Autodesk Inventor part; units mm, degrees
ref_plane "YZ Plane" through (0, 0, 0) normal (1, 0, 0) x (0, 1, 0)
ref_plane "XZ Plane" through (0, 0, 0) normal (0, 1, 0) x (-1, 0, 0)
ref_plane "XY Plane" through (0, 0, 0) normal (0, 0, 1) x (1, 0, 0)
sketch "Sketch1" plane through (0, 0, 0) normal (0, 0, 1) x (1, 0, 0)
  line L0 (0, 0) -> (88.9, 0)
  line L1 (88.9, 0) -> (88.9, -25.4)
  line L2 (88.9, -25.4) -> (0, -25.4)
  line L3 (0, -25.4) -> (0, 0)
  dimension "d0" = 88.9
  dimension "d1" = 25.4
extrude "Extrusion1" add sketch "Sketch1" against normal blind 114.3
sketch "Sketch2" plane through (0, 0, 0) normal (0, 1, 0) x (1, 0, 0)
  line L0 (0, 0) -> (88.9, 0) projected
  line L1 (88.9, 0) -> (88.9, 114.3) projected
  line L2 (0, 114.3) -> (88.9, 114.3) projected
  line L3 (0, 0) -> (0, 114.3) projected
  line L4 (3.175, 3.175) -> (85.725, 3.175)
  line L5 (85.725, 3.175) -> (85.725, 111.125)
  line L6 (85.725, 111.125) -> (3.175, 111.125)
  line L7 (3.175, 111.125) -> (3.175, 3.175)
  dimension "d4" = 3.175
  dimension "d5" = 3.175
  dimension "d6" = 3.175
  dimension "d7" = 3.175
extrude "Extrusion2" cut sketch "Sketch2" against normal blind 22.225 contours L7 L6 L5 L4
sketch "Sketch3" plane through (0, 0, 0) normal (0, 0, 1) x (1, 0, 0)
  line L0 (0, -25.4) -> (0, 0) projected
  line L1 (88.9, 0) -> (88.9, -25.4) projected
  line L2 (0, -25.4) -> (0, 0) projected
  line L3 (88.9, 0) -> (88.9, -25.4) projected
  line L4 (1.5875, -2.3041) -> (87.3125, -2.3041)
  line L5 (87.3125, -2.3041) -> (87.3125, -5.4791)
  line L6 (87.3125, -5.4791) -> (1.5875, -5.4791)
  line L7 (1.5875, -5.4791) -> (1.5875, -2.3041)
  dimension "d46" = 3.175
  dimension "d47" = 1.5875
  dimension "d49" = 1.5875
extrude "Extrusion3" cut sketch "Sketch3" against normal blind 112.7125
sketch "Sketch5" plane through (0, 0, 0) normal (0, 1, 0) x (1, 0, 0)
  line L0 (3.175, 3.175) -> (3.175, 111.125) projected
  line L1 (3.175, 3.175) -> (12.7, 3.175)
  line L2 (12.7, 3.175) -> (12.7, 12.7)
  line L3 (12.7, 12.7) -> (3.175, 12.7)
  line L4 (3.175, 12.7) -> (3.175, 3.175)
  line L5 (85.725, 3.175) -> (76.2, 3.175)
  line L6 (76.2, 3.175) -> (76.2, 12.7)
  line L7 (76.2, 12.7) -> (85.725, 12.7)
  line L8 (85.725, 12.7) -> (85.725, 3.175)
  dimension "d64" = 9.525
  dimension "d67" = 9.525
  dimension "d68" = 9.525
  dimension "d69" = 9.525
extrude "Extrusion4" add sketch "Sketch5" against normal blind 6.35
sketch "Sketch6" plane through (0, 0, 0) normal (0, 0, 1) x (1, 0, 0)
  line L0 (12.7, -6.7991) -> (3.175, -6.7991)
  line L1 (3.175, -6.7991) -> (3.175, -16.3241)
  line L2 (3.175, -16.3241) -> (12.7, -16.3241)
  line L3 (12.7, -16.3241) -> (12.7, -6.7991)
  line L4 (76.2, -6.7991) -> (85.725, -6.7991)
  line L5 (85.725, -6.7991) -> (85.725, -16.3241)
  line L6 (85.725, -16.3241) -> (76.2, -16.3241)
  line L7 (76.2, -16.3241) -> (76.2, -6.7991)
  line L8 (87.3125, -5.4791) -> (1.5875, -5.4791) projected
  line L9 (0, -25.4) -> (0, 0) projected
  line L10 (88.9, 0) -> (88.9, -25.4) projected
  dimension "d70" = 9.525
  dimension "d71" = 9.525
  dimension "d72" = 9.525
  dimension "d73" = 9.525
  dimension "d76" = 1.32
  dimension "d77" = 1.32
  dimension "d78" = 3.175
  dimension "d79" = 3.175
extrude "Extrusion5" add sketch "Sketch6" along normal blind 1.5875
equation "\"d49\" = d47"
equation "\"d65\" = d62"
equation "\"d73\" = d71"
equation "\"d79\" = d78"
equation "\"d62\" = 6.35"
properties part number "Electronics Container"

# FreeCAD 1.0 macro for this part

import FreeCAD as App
import Part
import Sketcher
from FreeCAD import Vector
Q = App.Units.Quantity

doc = App.newDocument("Part")
body = doc.addObject("PartDesign::Body", "Body")

# Sketch on XY plane
sketch1 = body.newObject("Sketcher::SketchObject", "Sketch")
sketch1.AttachmentSupport = (doc.getObject("XY_Plane"), [""])
sketch1.MapMode = "FlatFace"
sketch1.addGeometry([
    Part.LineSegment(Vector(89, 0, 0), Vector(0, 0, 0)),
    Part.LineSegment(Vector(0, 0, 0), Vector(0, -25, 0)),
    Part.LineSegment(Vector(0, -25, 0), Vector(89, -25, 0)),
    Part.LineSegment(Vector(89, -25, 0), Vector(89, 0, 0)),
], False)
sketch1.addConstraint([
    Sketcher.Constraint("Coincident", 0, 2, 1, 1),
    Sketcher.Constraint("Coincident", 1, 2, 2, 1),
    Sketcher.Constraint("Coincident", 2, 2, 3, 1),
    Sketcher.Constraint("Coincident", 3, 2, 0, 1),
    Sketcher.Constraint("Horizontal", 0),
    Sketcher.Constraint("Vertical", 1),
    Sketcher.Constraint("Horizontal", 2),
    Sketcher.Constraint("Vertical", 3),
    Sketcher.Constraint("Coincident", 0, 2, -1, 1),
    Sketcher.Constraint("DistanceY", 1, 2, 1, 1, Q("1 in")),
    Sketcher.Constraint("DistanceX", 0, 2, 0, 1, Q("3.5 in")),
])
pad1 = body.newObject("PartDesign::Pad", "Pad")
pad1.Profile = sketch1
pad1.Length = Q("4.5 in")
pad1.Reversed = True

# Sketch on XZ plane
sketch2 = body.newObject("Sketcher::SketchObject", "Sketch001")
sketch2.AttachmentSupport = (doc.getObject("XZ_Plane"), [""])
sketch2.MapMode = "FlatFace"
sketch2.addGeometry([
    Part.LineSegment(Vector(3, -111, 0), Vector(3, -3, 0)),
    Part.LineSegment(Vector(3, -3, 0), Vector(86, -3, 0)),
    Part.LineSegment(Vector(86, -3, 0), Vector(86, -111, 0)),
    Part.LineSegment(Vector(86, -111, 0), Vector(3, -111, 0)),
], False)
sketch2.addConstraint([
    Sketcher.Constraint("Coincident", 0, 2, 1, 1),
    Sketcher.Constraint("Coincident", 1, 2, 2, 1),
    Sketcher.Constraint("Coincident", 2, 2, 3, 1),
    Sketcher.Constraint("Coincident", 3, 2, 0, 1),
    Sketcher.Constraint("Vertical", 0),
    Sketcher.Constraint("Horizontal", 1),
    Sketcher.Constraint("Vertical", 2),
    Sketcher.Constraint("Horizontal", 3),
    Sketcher.Constraint("DistanceX", -1, 1, 0, 2, Q("0.125 in")),
    Sketcher.Constraint("DistanceY", 0, 2, -1, 1, Q("0.125 in")),
    Sketcher.Constraint("DistanceX", 1, 1, 1, 2, Q("3.25 in")),
    Sketcher.Constraint("DistanceY", 0, 1, 0, 2, Q("4.25 in")),
])
pocket1 = body.newObject("PartDesign::Pocket", "Pocket")
pocket1.Profile = sketch2
pocket1.Length = Q("0.875 in")
pocket1.Reversed = True

# Sketch on XY plane
sketch3 = body.newObject("Sketcher::SketchObject", "Sketch002")
sketch3.AttachmentSupport = (doc.getObject("XY_Plane"), [""])
sketch3.MapMode = "FlatFace"
sketch3.addGeometry([
    Part.LineSegment(Vector(87.3, -2.3, 0), Vector(1.6, -2.3, 0)),
    Part.LineSegment(Vector(1.6, -2.3, 0), Vector(1.6, -5.5, 0)),
    Part.LineSegment(Vector(1.6, -5.5, 0), Vector(87.3, -5.5, 0)),
    Part.LineSegment(Vector(87.3, -5.5, 0), Vector(87.3, -2.3, 0)),
], False)
sketch3.addConstraint([
    Sketcher.Constraint("Coincident", 0, 2, 1, 1),
    Sketcher.Constraint("Coincident", 1, 2, 2, 1),
    Sketcher.Constraint("Coincident", 2, 2, 3, 1),
    Sketcher.Constraint("Coincident", 3, 2, 0, 1),
    Sketcher.Constraint("Horizontal", 0),
    Sketcher.Constraint("Vertical", 1),
    Sketcher.Constraint("Horizontal", 2),
    Sketcher.Constraint("Vertical", 3),
    Sketcher.Constraint("DistanceY", 1, 2, 1, 1, Q("0.125 in")),
    Sketcher.Constraint("DistanceX", -1, 1, 0, 2, Q("0.0625 in")),
    Sketcher.Constraint("DistanceX", 0, 2, 0, 1, Q("3.375 in")),
    Sketcher.Constraint("DistanceY", 0, 2, -1, 1, Q("0.0907087 in")),
])
pocket2 = body.newObject("PartDesign::Pocket", "Pocket001")
pocket2.Profile = sketch3
pocket2.Length = Q("4.4375 in")

# Sketch on XZ plane
sketch4 = body.newObject("Sketcher::SketchObject", "Sketch003")
sketch4.AttachmentSupport = (doc.getObject("XZ_Plane"), [""])
sketch4.MapMode = "FlatFace"
sketch4.addGeometry([
    Part.LineSegment(Vector(3, -13, 0), Vector(3, -3, 0)),  # 0
    Part.LineSegment(Vector(3, -3, 0), Vector(13, -3, 0)),  # 1
    Part.LineSegment(Vector(13, -3, 0), Vector(13, -13, 0)),  # 2
    Part.LineSegment(Vector(13, -13, 0), Vector(3, -13, 0)),  # 3
    Part.LineSegment(Vector(76, -3, 0), Vector(86, -3, 0)),  # 4
    Part.LineSegment(Vector(86, -3, 0), Vector(86, -13, 0)),  # 5
    Part.LineSegment(Vector(86, -13, 0), Vector(76, -13, 0)),  # 6
    Part.LineSegment(Vector(76, -13, 0), Vector(76, -3, 0)),  # 7
], False)
sketch4.addConstraint([
    Sketcher.Constraint("Coincident", 0, 2, 1, 1),
    Sketcher.Constraint("Coincident", 1, 2, 2, 1),
    Sketcher.Constraint("Coincident", 2, 2, 3, 1),
    Sketcher.Constraint("Coincident", 3, 2, 0, 1),
    Sketcher.Constraint("Coincident", 4, 2, 5, 1),
    Sketcher.Constraint("Coincident", 5, 2, 6, 1),
    Sketcher.Constraint("Coincident", 6, 2, 7, 1),
    Sketcher.Constraint("Coincident", 7, 2, 4, 1),
    Sketcher.Constraint("Vertical", 0),
    Sketcher.Constraint("Horizontal", 1),
    Sketcher.Constraint("Vertical", 2),
    Sketcher.Constraint("Horizontal", 3),
    Sketcher.Constraint("Horizontal", 4),
    Sketcher.Constraint("Vertical", 5),
    Sketcher.Constraint("Horizontal", 6),
    Sketcher.Constraint("Vertical", 7),
    Sketcher.Constraint("Horizontal", 1, 2, 4, 2),
    Sketcher.Constraint("Horizontal", 3, 2, 5, 2),
    Sketcher.Constraint("Equal", 3, 4),
    Sketcher.Constraint("Equal", 6, 0),
    Sketcher.Constraint("DistanceX", 1, 1, 1, 2, Q("0.375 in")),
    Sketcher.Constraint("DistanceX", -1, 1, 6, 2, Q("3 in")),
    Sketcher.Constraint("DistanceX", -1, 1, 1, 2, Q("0.5 in")),
    Sketcher.Constraint("DistanceY", 2, 2, -1, 1, Q("0.5 in")),
])
pad2 = body.newObject("PartDesign::Pad", "Pad001")
pad2.Profile = sketch4
pad2.Length = Q("0.25 in")

# Sketch on XY plane
sketch5 = body.newObject("Sketcher::SketchObject", "Sketch004")
sketch5.AttachmentSupport = (doc.getObject("XY_Plane"), [""])
sketch5.MapMode = "FlatFace"
sketch5.addGeometry([
    Part.LineSegment(Vector(13, -16, 0), Vector(13, -7, 0)),  # 0
    Part.LineSegment(Vector(13, -7, 0), Vector(3, -7, 0)),  # 1
    Part.LineSegment(Vector(3, -7, 0), Vector(3, -16, 0)),  # 2
    Part.LineSegment(Vector(3, -16, 0), Vector(13, -16, 0)),  # 3
    Part.LineSegment(Vector(86, -7, 0), Vector(76, -7, 0)),  # 4
    Part.LineSegment(Vector(76, -7, 0), Vector(76, -16, 0)),  # 5
    Part.LineSegment(Vector(76, -16, 0), Vector(86, -16, 0)),  # 6
    Part.LineSegment(Vector(86, -16, 0), Vector(86, -7, 0)),  # 7
], False)
sketch5.addConstraint([
    Sketcher.Constraint("Coincident", 0, 2, 1, 1),
    Sketcher.Constraint("Coincident", 1, 2, 2, 1),
    Sketcher.Constraint("Coincident", 2, 2, 3, 1),
    Sketcher.Constraint("Coincident", 3, 2, 0, 1),
    Sketcher.Constraint("Coincident", 4, 2, 5, 1),
    Sketcher.Constraint("Coincident", 5, 2, 6, 1),
    Sketcher.Constraint("Coincident", 6, 2, 7, 1),
    Sketcher.Constraint("Coincident", 7, 2, 4, 1),
    Sketcher.Constraint("Vertical", 0),
    Sketcher.Constraint("Horizontal", 1),
    Sketcher.Constraint("Vertical", 2),
    Sketcher.Constraint("Horizontal", 3),
    Sketcher.Constraint("Horizontal", 4),
    Sketcher.Constraint("Vertical", 5),
    Sketcher.Constraint("Horizontal", 6),
    Sketcher.Constraint("Vertical", 7),
    Sketcher.Constraint("Horizontal", 1, 2, 4, 2),
    Sketcher.Constraint("Horizontal", 3, 2, 5, 2),
    Sketcher.Constraint("Equal", 3, 4),
    Sketcher.Constraint("Equal", 6, 0),
    Sketcher.Constraint("DistanceX", 1, 2, 1, 1, Q("0.375 in")),
    Sketcher.Constraint("DistanceX", -1, 1, 1, 2, Q("0.125 in")),
    Sketcher.Constraint("DistanceX", -1, 1, 4, 2, Q("3 in")),
    Sketcher.Constraint("DistanceY", 0, 2, -1, 1, 6.799),
])
pad3 = body.newObject("PartDesign::Pad", "Pad002")
pad3.Profile = sketch5
pad3.Length = Q("0.0625 in")

doc.recompute()
